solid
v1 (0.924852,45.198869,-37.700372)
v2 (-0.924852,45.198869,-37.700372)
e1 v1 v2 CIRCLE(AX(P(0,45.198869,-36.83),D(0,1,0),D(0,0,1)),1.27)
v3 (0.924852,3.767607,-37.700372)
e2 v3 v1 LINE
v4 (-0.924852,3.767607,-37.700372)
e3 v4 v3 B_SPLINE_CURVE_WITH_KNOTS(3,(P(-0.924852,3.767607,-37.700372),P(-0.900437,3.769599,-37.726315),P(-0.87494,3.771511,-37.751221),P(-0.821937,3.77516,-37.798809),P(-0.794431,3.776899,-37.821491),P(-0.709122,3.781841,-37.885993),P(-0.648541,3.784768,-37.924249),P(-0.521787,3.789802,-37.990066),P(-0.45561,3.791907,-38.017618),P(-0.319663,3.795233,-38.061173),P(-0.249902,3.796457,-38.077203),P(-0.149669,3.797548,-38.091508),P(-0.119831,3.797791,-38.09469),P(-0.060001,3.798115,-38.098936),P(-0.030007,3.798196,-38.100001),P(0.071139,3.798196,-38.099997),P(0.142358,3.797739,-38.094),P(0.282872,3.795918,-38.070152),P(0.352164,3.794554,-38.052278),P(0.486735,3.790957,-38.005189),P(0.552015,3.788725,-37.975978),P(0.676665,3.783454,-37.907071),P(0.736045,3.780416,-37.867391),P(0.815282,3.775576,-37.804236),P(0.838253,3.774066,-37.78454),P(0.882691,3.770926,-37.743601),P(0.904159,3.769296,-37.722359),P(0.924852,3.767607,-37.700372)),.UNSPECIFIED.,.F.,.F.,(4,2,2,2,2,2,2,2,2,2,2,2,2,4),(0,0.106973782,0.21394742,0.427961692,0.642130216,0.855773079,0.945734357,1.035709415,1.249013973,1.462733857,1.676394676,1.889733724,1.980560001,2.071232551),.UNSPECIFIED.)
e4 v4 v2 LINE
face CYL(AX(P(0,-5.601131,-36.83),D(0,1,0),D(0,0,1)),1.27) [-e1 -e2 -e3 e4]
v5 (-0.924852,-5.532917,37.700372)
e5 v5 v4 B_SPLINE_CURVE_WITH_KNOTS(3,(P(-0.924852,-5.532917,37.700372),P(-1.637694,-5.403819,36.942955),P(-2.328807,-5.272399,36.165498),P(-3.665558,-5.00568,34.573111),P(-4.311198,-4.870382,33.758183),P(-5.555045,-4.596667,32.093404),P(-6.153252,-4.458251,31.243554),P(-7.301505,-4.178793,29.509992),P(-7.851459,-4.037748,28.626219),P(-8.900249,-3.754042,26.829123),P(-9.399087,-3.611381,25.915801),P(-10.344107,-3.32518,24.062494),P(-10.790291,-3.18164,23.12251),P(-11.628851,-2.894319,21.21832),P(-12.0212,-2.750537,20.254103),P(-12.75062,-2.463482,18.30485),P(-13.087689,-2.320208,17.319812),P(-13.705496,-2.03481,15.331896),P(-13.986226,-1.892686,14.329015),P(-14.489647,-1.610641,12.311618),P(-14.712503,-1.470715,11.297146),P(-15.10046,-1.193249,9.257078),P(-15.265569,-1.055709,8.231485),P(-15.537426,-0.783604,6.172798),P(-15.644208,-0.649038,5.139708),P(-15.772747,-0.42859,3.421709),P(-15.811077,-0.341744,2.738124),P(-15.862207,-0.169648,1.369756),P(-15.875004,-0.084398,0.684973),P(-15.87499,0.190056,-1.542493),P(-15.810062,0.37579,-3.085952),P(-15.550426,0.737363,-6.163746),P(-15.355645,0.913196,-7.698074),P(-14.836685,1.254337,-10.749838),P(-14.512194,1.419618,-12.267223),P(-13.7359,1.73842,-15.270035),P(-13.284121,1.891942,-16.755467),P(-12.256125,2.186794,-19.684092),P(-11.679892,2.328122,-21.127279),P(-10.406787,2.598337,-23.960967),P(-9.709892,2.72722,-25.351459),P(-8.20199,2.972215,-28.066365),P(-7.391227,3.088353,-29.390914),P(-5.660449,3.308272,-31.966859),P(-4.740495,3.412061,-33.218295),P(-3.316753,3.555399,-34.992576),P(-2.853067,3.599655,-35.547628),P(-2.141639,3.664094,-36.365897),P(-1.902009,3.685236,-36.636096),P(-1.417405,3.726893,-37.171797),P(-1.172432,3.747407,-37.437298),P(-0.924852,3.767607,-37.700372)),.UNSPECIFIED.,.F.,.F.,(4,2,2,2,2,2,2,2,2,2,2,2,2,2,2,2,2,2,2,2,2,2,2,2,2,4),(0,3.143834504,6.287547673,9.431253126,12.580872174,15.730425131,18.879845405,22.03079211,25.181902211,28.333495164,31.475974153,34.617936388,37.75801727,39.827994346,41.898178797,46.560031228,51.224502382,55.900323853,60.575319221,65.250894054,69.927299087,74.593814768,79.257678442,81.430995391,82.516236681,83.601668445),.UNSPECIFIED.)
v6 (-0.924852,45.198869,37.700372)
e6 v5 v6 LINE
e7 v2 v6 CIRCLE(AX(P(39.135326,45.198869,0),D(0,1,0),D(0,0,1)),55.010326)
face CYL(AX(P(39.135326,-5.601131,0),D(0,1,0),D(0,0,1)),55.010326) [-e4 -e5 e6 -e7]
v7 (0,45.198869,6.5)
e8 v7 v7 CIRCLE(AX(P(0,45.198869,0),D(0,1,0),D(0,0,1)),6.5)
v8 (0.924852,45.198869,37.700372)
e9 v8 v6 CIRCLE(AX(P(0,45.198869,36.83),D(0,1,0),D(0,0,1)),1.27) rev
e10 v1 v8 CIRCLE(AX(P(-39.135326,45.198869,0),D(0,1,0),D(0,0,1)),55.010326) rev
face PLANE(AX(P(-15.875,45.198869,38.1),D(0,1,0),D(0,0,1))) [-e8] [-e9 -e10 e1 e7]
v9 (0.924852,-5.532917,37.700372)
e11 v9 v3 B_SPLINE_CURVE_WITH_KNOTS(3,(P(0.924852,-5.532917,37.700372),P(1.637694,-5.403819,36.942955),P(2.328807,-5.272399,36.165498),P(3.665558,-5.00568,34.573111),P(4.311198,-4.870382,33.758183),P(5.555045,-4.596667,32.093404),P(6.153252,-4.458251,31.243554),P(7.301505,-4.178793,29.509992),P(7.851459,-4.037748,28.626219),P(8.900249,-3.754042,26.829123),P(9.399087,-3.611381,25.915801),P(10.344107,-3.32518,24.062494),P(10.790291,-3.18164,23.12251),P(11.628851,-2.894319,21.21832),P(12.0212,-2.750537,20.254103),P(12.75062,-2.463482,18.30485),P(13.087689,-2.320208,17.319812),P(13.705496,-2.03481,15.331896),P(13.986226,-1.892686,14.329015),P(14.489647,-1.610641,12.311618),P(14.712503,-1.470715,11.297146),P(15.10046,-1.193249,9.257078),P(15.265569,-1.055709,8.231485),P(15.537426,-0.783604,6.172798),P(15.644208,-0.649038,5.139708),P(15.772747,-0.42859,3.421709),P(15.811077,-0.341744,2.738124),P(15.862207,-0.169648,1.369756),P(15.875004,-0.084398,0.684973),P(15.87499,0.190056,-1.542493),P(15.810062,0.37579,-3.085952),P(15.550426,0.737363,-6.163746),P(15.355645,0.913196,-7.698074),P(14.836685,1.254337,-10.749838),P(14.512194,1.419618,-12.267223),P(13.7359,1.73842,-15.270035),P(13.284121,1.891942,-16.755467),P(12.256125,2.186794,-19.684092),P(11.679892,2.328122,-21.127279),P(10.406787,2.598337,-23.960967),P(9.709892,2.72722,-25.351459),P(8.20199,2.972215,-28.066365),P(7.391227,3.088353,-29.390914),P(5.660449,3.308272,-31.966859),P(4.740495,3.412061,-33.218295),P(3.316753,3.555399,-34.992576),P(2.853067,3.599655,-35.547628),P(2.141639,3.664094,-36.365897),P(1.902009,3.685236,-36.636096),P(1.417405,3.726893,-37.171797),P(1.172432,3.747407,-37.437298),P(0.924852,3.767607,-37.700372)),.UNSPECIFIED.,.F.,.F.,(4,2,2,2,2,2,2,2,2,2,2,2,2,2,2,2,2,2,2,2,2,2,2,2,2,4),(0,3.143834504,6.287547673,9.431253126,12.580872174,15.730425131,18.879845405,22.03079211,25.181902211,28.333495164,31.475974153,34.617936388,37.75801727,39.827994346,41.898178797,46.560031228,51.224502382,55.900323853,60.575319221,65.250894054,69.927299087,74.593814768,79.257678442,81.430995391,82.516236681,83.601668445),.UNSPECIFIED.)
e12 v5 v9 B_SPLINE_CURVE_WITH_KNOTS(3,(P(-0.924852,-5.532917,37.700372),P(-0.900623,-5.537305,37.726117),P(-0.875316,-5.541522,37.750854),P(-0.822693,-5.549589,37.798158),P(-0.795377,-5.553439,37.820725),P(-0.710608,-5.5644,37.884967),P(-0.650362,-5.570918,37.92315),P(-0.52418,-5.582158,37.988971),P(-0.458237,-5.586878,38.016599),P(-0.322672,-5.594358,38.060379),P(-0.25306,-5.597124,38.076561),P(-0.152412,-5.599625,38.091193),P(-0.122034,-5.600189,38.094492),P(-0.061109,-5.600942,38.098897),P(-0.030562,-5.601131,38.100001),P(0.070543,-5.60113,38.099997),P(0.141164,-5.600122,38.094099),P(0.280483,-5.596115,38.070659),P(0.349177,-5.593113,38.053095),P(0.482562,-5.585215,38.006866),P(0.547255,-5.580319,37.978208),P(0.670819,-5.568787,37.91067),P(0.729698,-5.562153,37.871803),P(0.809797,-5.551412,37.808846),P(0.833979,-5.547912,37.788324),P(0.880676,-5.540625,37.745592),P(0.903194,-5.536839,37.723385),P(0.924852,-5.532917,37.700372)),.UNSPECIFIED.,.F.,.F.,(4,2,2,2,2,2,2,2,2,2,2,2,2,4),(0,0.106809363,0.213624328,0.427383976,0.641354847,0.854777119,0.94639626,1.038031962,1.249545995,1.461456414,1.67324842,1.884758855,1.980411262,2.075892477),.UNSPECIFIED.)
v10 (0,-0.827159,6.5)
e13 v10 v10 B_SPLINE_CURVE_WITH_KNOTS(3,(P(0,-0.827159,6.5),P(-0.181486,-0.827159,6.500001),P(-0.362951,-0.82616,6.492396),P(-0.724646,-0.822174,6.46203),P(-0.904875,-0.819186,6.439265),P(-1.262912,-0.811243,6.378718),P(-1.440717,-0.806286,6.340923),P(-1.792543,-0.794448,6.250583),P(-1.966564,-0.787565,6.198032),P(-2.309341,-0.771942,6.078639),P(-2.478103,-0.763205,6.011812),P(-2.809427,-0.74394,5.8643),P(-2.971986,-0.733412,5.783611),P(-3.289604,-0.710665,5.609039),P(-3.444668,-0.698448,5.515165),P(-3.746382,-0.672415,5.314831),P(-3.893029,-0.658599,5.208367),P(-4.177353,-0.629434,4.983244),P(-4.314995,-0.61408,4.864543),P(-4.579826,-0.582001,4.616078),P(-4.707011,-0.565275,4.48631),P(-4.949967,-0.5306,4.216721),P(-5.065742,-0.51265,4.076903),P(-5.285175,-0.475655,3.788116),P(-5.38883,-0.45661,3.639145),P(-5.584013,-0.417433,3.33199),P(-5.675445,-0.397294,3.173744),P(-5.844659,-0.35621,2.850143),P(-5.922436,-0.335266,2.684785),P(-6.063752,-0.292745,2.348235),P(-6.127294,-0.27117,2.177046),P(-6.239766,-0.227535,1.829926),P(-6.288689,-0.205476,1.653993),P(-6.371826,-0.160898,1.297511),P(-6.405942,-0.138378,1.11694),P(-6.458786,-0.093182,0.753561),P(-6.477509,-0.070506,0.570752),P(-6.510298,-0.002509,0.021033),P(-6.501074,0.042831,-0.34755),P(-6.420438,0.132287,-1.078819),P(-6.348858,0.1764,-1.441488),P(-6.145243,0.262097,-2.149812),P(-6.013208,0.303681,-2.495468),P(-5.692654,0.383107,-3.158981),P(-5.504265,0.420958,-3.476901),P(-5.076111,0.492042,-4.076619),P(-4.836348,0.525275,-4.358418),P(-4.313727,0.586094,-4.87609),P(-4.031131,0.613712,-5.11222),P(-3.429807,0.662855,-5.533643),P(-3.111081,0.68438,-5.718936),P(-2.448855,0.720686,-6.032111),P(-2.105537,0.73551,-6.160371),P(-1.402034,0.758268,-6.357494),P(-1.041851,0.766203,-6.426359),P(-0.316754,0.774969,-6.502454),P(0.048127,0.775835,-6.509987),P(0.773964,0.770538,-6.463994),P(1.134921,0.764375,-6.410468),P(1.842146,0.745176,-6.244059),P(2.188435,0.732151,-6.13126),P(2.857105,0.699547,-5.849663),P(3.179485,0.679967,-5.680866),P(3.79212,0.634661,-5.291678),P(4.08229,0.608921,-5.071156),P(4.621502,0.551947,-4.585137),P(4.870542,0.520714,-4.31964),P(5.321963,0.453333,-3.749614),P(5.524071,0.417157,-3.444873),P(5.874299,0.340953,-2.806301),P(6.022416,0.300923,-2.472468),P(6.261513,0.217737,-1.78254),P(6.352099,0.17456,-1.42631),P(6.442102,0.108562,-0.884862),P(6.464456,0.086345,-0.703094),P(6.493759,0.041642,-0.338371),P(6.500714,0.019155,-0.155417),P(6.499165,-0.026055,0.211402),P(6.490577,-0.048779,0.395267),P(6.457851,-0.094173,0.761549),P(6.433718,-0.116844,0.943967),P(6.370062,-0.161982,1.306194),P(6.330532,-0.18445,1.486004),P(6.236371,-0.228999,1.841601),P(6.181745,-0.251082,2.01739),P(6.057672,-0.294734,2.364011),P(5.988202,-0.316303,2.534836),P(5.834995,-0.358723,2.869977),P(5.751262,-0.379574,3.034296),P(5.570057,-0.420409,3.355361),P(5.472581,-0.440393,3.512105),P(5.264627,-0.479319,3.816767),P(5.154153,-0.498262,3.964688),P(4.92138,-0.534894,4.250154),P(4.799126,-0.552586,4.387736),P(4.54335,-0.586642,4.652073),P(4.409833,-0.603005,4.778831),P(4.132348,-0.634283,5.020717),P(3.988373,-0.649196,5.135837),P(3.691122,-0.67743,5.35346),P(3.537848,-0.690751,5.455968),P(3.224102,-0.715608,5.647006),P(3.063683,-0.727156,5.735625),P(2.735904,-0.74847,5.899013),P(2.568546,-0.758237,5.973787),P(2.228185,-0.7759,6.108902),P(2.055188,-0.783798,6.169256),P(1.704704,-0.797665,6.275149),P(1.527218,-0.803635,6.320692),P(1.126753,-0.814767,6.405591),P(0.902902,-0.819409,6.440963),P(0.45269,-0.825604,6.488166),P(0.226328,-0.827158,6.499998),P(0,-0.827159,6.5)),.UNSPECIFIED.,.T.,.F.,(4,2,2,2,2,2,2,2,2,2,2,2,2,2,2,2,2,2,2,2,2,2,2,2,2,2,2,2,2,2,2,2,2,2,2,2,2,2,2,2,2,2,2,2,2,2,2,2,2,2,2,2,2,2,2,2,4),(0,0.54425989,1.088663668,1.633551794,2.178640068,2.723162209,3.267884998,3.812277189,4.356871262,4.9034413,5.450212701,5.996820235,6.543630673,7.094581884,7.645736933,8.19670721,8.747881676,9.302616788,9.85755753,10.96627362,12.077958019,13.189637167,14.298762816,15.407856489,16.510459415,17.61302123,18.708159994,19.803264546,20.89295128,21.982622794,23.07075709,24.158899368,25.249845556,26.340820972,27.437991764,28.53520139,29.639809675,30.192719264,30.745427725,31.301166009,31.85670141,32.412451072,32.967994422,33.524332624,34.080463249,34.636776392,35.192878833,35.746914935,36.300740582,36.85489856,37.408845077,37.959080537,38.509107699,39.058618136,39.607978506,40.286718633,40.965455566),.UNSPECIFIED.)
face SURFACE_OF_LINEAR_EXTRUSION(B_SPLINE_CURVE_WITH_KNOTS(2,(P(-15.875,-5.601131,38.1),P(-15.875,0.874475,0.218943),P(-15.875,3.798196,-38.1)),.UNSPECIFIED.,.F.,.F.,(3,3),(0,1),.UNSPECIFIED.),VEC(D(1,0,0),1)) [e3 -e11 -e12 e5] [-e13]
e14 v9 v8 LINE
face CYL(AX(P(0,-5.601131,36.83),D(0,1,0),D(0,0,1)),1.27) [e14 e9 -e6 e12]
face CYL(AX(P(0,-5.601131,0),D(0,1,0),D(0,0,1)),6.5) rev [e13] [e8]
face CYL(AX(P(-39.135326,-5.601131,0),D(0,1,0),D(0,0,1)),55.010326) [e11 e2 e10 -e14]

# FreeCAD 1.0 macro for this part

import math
import FreeCAD as App
import Part
import Sketcher
from FreeCAD import Vector
Q = App.Units.Quantity

doc = App.newDocument("Part")
body = doc.addObject("PartDesign::Body", "Body")

# Sketch on YZ plane
sketch1 = body.newObject("Sketcher::SketchObject", "Sketch")
sketch1.AttachmentSupport = (doc.getObject("YZ_Plane"), [""])
sketch1.MapMode = "FlatFace"
sketch1.addGeometry([
    Part.LineSegment(Vector(45.198869, 38.1, 0), Vector(-5.601131, 38.1, 0)),
    Part.BSplineCurve([Vector(-5.601131, 38.1, 0), Vector(0.874475, 0.218943, 0), Vector(3.798196, -38.1, 0)], [3, 3], [0, 1], False, 2, [1, 1, 1], False),
    Part.LineSegment(Vector(3.798196, -38.1, 0), Vector(45.198869, -38.1, 0)),
    Part.LineSegment(Vector(45.198869, -38.1, 0), Vector(45.198869, 38.1, 0)),
], False)
sketch1.addConstraint([
    Sketcher.Constraint("Block", 1),
    Sketcher.Constraint("Coincident", 0, 2, 1, 1),
    Sketcher.Constraint("Coincident", 1, 2, 2, 1),
    Sketcher.Constraint("Coincident", 2, 2, 3, 1),
    Sketcher.Constraint("Coincident", 3, 2, 0, 1),
    Sketcher.Constraint("Horizontal", 0),
    Sketcher.Constraint("Horizontal", 2),
    Sketcher.Constraint("Vertical", 3),
    Sketcher.Constraint("DistanceX", 0, 2, 0, 1, Q("2 in")),
])
pad1 = body.newObject("PartDesign::Pad", "Pad")
pad1.Profile = sketch1
pad1.Length = Q("1.25 in")
pad1.Midplane = True

# Sketch on XZ plane
sketch2 = body.newObject("Sketcher::SketchObject", "Sketch001")
sketch2.AttachmentSupport = (doc.getObject("XZ_Plane"), [""])
sketch2.MapMode = "FlatFace"
sketch2.AttachmentOffset = App.Placement(Vector(0, 0, -45.198869), App.Rotation())
sketch2.addGeometry([
    Part.LineSegment(Vector(0, 38.1, 0), Vector(15.9, 38.1, 0)),  # 0
    Part.LineSegment(Vector(15.9, 38.1, 0), Vector(15.9, 0, 0)),  # 1
    Part.ArcOfCircle(Part.Circle(Vector(-39.1, 0, 0), Vector(0, 0, 1), 55), math.radians(0), math.radians(43)),  # 2
    Part.ArcOfCircle(Part.Circle(Vector(0, 36.8, 0), Vector(0, 0, 1), 1.3), math.radians(43), math.radians(90)),  # 3
    Part.ArcOfCircle(Part.Circle(Vector(-39.1, 0, 0), Vector(0, 0, 1), 55), math.radians(-43), math.radians(0)),  # 4
    Part.LineSegment(Vector(15.9, 0, 0), Vector(15.9, -38.1, 0)),  # 5
    Part.LineSegment(Vector(15.9, -38.1, 0), Vector(0, -38.1, 0)),  # 6
    Part.ArcOfCircle(Part.Circle(Vector(0, -36.8, 0), Vector(0, 0, 1), 1.3), math.radians(-90), math.radians(-43)),  # 7
    Part.LineSegment(Vector(-15.9, 38.1, 0), Vector(0, 38.1, 0)),  # 8
    Part.ArcOfCircle(Part.Circle(Vector(0, 36.8, 0), Vector(0, 0, 1), 1.3), math.radians(90), math.radians(137)),  # 9
    Part.ArcOfCircle(Part.Circle(Vector(39.1, 0, 0), Vector(0, 0, 1), 55), math.radians(137), math.radians(180)),  # 10
    Part.LineSegment(Vector(-15.9, 0, 0), Vector(-15.9, 38.1, 0)),  # 11
    Part.ArcOfCircle(Part.Circle(Vector(0, -36.8, 0), Vector(0, 0, 1), 1.3), math.radians(-137), math.radians(-90)),  # 12
    Part.LineSegment(Vector(0, -38.1, 0), Vector(-15.9, -38.1, 0)),  # 13
    Part.LineSegment(Vector(-15.9, -38.1, 0), Vector(-15.9, 0, 0)),  # 14
    Part.ArcOfCircle(Part.Circle(Vector(39.1, 0, 0), Vector(0, 0, 1), 55), math.radians(180), math.radians(223)),  # 15
    Part.Circle(Vector(0, 0, 0), Vector(0, 0, 1), 6.5),  # 16
], False)
sketch2.addConstraint([
    Sketcher.Constraint("Coincident", 0, 2, 1, 1),
    Sketcher.Constraint("Tangent", 1, 2, 2, 1),
    Sketcher.Constraint("Tangent", 2, 2, 3, 1),
    Sketcher.Constraint("Tangent", 3, 2, 0, 1),
    Sketcher.Constraint("Tangent", 4, 2, 5, 1),
    Sketcher.Constraint("Coincident", 5, 2, 6, 1),
    Sketcher.Constraint("Tangent", 6, 2, 7, 1),
    Sketcher.Constraint("Tangent", 7, 2, 4, 1),
    Sketcher.Constraint("Tangent", 8, 2, 9, 1),
    Sketcher.Constraint("Tangent", 9, 2, 10, 1),
    Sketcher.Constraint("Tangent", 10, 2, 11, 1),
    Sketcher.Constraint("Coincident", 11, 2, 8, 1),
    Sketcher.Constraint("Tangent", 12, 2, 13, 1),
    Sketcher.Constraint("Coincident", 13, 2, 14, 1),
    Sketcher.Constraint("Tangent", 14, 2, 15, 1),
    Sketcher.Constraint("Tangent", 15, 2, 12, 1),
    Sketcher.Constraint("Horizontal", 0),
    Sketcher.Constraint("Vertical", 1),
    Sketcher.Constraint("Vertical", 5),
    Sketcher.Constraint("Horizontal", 6),
    Sketcher.Constraint("Horizontal", 8),
    Sketcher.Constraint("Vertical", 11),
    Sketcher.Constraint("Horizontal", 13),
    Sketcher.Constraint("Vertical", 14),
    Sketcher.Constraint("Coincident", 16, 3, -1, 1),
    Sketcher.Constraint("Coincident", 4, 3, 2, 3),
    Sketcher.Constraint("Coincident", 9, 3, 3, 3),
    Sketcher.Constraint("Coincident", 12, 3, 7, 3),
    Sketcher.Constraint("Coincident", 15, 3, 10, 3),
    Sketcher.Constraint("Equal", 2, 4),
    Sketcher.Constraint("Equal", 3, 7),
    Sketcher.Constraint("Equal", 7, 9),
    Sketcher.Constraint("Equal", 4, 10),
    Sketcher.Constraint("Equal", 9, 12),
    Sketcher.Constraint("Equal", 10, 15),
    Sketcher.Constraint("Symmetric", 3, 3, 7, 3, -1, 1),
    Sketcher.Constraint("PointOnObject", 2, 3, -1),
    Sketcher.Constraint("Radius", 3, Q("0.05 in")),
    Sketcher.Constraint("DistanceY", 1, 2, 1, 1, Q("1.5 in")),
    Sketcher.Constraint("Diameter", 16, 13.0),
    Sketcher.Constraint("DistanceX", 0, 1, 0, 2, Q("0.625 in")),
])
pocket1 = body.newObject("PartDesign::Pocket", "Pocket")
pocket1.Profile = sketch2
pocket1.Type = "ThroughAll"
pocket1.Reversed = True

doc.recompute()
